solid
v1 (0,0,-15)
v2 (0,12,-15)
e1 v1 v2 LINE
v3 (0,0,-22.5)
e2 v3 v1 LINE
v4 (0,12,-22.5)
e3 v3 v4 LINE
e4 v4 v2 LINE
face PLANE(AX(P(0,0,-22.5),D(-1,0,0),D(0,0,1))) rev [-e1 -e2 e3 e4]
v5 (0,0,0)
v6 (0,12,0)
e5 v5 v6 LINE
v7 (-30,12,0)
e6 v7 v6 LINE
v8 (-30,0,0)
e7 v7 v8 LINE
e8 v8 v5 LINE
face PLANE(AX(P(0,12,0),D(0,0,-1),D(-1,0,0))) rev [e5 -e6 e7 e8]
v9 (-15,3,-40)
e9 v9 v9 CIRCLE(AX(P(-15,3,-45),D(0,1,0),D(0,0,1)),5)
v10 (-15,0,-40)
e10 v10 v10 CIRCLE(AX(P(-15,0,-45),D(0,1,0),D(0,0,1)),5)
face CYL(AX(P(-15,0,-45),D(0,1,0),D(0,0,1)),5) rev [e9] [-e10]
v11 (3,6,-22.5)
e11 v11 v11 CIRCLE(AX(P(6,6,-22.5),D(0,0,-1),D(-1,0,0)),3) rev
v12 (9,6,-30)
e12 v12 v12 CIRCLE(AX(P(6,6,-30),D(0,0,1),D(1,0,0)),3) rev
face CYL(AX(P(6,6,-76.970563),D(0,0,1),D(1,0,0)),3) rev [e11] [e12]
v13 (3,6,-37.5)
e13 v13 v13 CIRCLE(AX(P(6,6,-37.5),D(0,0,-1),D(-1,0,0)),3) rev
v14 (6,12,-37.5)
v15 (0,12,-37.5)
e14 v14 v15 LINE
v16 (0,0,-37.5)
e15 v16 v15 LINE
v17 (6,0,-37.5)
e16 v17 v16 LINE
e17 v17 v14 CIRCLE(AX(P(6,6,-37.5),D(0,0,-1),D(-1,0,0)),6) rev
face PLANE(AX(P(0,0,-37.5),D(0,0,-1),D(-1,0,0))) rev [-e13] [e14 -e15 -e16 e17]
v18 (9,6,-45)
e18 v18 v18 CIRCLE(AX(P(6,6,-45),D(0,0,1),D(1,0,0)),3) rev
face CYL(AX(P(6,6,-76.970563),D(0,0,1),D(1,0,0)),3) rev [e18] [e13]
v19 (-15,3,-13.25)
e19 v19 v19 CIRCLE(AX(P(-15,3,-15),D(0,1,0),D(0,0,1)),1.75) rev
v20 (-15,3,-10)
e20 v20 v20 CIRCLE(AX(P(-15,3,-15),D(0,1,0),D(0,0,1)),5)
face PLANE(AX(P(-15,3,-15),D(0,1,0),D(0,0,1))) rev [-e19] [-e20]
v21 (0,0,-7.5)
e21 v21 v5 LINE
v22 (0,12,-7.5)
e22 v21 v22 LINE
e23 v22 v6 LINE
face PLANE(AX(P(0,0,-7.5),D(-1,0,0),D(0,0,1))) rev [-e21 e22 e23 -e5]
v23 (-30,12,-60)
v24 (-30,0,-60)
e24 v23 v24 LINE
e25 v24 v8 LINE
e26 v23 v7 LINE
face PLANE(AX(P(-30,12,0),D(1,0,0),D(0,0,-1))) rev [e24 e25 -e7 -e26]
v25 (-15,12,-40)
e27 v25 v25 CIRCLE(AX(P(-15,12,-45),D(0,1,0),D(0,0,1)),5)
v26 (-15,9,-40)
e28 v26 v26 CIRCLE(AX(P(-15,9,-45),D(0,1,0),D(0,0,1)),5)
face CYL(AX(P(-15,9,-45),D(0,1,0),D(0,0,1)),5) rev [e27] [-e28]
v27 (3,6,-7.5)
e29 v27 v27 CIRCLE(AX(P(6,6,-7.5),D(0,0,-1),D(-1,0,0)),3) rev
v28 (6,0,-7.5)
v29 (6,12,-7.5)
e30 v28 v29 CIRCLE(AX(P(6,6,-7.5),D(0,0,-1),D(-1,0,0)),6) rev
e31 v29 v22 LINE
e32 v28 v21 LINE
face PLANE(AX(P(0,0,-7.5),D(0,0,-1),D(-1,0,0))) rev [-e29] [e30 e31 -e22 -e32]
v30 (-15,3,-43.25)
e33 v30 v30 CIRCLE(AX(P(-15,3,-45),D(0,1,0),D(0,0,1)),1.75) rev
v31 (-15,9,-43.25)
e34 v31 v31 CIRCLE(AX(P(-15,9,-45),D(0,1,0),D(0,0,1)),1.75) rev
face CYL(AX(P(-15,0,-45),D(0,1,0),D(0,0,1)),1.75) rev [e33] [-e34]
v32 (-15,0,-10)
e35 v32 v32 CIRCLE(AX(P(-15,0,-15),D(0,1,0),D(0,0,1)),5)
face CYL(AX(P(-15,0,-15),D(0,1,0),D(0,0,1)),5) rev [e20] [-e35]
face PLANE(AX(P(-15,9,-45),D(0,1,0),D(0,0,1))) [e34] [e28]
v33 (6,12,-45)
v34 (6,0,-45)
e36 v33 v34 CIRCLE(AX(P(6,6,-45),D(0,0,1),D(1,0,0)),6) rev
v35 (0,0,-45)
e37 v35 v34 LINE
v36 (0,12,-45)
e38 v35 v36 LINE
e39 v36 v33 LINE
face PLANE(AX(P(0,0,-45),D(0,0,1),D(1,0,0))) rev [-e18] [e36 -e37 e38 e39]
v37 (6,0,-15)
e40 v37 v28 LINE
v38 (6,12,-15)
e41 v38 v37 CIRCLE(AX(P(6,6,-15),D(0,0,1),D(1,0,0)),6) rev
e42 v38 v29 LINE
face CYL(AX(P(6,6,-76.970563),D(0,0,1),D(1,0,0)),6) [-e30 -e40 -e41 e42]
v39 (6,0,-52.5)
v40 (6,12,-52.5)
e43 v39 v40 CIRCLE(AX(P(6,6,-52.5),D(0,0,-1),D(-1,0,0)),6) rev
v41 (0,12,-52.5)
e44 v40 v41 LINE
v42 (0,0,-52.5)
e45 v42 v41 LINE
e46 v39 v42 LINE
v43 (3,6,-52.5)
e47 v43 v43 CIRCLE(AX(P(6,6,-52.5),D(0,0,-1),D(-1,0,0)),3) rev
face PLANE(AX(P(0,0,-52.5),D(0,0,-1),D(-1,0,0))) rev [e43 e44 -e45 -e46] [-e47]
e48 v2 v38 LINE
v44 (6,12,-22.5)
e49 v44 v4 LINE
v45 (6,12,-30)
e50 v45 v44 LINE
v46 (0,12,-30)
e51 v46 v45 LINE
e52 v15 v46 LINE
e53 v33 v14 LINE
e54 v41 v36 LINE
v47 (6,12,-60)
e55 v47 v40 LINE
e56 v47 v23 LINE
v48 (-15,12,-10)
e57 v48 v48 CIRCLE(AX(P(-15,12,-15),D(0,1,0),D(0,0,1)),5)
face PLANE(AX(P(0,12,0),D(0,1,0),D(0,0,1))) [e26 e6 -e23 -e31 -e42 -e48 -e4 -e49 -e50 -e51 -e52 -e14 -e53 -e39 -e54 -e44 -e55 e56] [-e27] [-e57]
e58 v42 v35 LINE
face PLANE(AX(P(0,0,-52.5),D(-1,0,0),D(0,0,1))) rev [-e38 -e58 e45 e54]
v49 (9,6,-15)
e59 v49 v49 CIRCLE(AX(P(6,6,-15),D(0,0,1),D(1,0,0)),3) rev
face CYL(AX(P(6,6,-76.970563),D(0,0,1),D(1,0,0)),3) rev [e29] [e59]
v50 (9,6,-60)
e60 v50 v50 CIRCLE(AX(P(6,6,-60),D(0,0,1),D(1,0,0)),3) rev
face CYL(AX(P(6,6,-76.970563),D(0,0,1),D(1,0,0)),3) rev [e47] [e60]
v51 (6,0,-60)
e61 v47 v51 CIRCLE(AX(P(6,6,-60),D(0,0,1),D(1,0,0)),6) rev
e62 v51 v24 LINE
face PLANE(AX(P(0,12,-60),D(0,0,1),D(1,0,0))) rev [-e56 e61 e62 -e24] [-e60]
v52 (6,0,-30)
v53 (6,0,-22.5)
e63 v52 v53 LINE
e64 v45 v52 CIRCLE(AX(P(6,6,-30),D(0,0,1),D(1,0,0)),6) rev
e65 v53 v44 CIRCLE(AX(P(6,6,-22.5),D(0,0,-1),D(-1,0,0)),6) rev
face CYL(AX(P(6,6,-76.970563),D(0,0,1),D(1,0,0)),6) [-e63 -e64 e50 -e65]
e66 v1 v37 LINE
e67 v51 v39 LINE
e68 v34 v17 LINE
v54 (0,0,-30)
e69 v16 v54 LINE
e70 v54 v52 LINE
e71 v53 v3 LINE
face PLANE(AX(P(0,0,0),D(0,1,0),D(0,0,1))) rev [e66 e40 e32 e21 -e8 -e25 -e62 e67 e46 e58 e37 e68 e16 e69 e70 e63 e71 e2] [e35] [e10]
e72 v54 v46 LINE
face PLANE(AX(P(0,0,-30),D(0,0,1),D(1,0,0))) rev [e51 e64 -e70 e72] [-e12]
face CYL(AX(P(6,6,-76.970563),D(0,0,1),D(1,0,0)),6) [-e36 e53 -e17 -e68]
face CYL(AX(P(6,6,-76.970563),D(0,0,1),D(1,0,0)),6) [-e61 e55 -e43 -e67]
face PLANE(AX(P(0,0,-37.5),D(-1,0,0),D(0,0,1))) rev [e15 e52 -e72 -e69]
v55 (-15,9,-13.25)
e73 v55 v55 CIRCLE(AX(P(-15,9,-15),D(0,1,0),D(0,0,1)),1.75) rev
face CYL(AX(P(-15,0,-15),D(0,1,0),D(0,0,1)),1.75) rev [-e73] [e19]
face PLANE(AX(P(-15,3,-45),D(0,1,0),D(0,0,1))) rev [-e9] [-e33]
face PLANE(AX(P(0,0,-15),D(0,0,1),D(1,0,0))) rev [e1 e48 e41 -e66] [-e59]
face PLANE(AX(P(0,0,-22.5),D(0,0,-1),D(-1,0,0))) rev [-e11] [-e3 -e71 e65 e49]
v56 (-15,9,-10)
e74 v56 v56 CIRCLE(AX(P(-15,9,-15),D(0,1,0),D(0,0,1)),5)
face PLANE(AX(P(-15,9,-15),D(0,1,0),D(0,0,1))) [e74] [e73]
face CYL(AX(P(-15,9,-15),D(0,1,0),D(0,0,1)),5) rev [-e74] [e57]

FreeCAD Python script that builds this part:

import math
import FreeCAD as App
import Part
import Sketcher


def add_polygon(sketch, points):
    """Adds a closed chain of lines whose ends are joined by coincident constraints."""
    first, n = sketch.GeometryCount, len(points)
    for a, b in zip(points, points[1:] + points[:1]):
        sketch.addGeometry(Part.LineSegment(App.Vector(*a, 0), App.Vector(*b, 0)), False)
    for i in range(n):
        sketch.addConstraint(Sketcher.Constraint("Coincident", first + i, 2, first + (i + 1) % n, 1))

doc = App.newDocument("Part")
params = doc.addObject("Spreadsheet::Sheet", "Params")
for row, (alias, value) in enumerate([
    ("sketch1_width", "30 mm"),
    ("sketch1_height", "60 mm"),
    ("pad1_length", "12 mm"),
    ("sketch2_diameter", "6 mm"),
    ("sketch2_radius", "6 mm"),
    ("sketch2_width", "6 mm"),
    ("pad2_length", "60 mm"),
    ("sketch3_width", "12 mm"),
    ("sketch3_height", "7.5 mm"),
    ("linearpattern_pitch", "15 mm"),
    ("sketch4_diameter", "3.5 mm"),
    ("sketch5_diameter", "10 mm"),
    ("pocket3_length", "3 mm"),
    ("linearpattern2_pitch", "9 mm"),
], start=1):
    params.set(f"A{row}", alias)
    params.set(f"B{row}", "=" + value)
    params.setAlias(f"B{row}", alias)

body = doc.addObject("PartDesign::Body", "Body")

# Sketch on XZ plane
sketch1 = body.newObject("Sketcher::SketchObject", "Sketch")
sketch1.AttachmentSupport = (doc.getObject("XZ_Plane"), [""])
sketch1.MapMode = "FlatFace"
add_polygon(sketch1, [(-30, -60), (-30, 0), (0, 0), (0, -60)])  # lines 0-3
sketch1.addConstraint([
    Sketcher.Constraint("Vertical", 0),
    Sketcher.Constraint("Horizontal", 1),
    Sketcher.Constraint("Vertical", 2),
    Sketcher.Constraint("Horizontal", 3),
    Sketcher.Constraint("Coincident", 1, 2, -1, 1),
    Sketcher.Constraint("DistanceX", 1, 1, 1, 2, 30.0),
    Sketcher.Constraint("DistanceY", 0, 1, 0, 2, 60.0),
])
sketch1.setExpression("Constraints[9]", "Params.sketch1_width")
sketch1.setExpression("Constraints[10]", "Params.sketch1_height")
pad1 = body.newObject("PartDesign::Pad", "Pad")
pad1.Profile = sketch1
pad1.setExpression("Length", "Params.pad1_length")
pad1.Reversed = True

# Sketch on XY plane
sketch2 = body.newObject("Sketcher::SketchObject", "Sketch001")
sketch2.AttachmentSupport = (doc.getObject("XY_Plane"), [""])
sketch2.MapMode = "FlatFace"
sketch2.addGeometry([
    Part.LineSegment(App.Vector(0, 0, 0), App.Vector(6, 0, 0)),  # 0
    Part.ArcOfCircle(Part.Circle(App.Vector(6, 6, 0), App.Vector(0, 0, 1), 6), math.radians(-90), math.radians(90)),  # 1
    Part.LineSegment(App.Vector(6, 12, 0), App.Vector(0, 12, 0)),  # 2
    Part.LineSegment(App.Vector(0, 12, 0), App.Vector(0, 0, 0)),  # 3
    Part.Circle(App.Vector(6, 6, 0), App.Vector(0, 0, 1), 3),  # 4
], False)
sketch2.addConstraint([
    Sketcher.Constraint("Tangent", 0, 2, 1, 1),
    Sketcher.Constraint("Tangent", 1, 2, 2, 1),
    Sketcher.Constraint("Coincident", 2, 2, 3, 1),
    Sketcher.Constraint("Coincident", 3, 2, 0, 1),
    Sketcher.Constraint("Horizontal", 0),
    Sketcher.Constraint("Horizontal", 2),
    Sketcher.Constraint("Vertical", 3),
    Sketcher.Constraint("Coincident", 3, 2, -1, 1),
    Sketcher.Constraint("Coincident", 4, 3, 1, 3),
    Sketcher.Constraint("Diameter", 4, 6.0),
    Sketcher.Constraint("Radius", 1, 6.0),
    Sketcher.Constraint("DistanceX", 0, 1, 0, 2, 6.0),
])
sketch2.setExpression("Constraints[9]", "Params.sketch2_diameter")
sketch2.setExpression("Constraints[10]", "Params.sketch2_radius")
sketch2.setExpression("Constraints[11]", "Params.sketch2_width")
pad2 = body.newObject("PartDesign::Pad", "Pad001")
pad2.Profile = sketch2
pad2.setExpression("Length", "Params.pad2_length")
pad2.Reversed = True

# Sketch on XZ plane
sketch3 = body.newObject("Sketcher::SketchObject", "Sketch002")
sketch3.AttachmentSupport = (doc.getObject("XZ_Plane"), [""])
sketch3.MapMode = "FlatFace"
sketch3.AttachmentOffset = App.Placement(App.Vector(0, 0, -12), App.Rotation())
add_polygon(sketch3, [(0, -52.5), (0, -45), (12, -45), (12, -52.5)])  # lines 0-3
sketch3.addConstraint([
    Sketcher.Constraint("Vertical", 0),
    Sketcher.Constraint("Horizontal", 1),
    Sketcher.Constraint("Vertical", 2),
    Sketcher.Constraint("Horizontal", 3),
    Sketcher.Constraint("PointOnObject", 0, 2, -2),
    Sketcher.Constraint("DistanceX", 1, 1, 1, 2, 12.0),
    Sketcher.Constraint("DistanceY", 0, 1, 0, 2, 7.5),
    Sketcher.Constraint("DistanceY", 0, 2, -1, 1, 45.0),
])
sketch3.setExpression("Constraints[9]", "Params.sketch3_width")
sketch3.setExpression("Constraints[10]", "Params.sketch3_height")
pocket1 = body.newObject("PartDesign::Pocket", "Pocket")
pocket1.Profile = sketch3
pocket1.Type = "ThroughAll"
pocket1.Reversed = True
doc.recompute()

linearpattern = body.newObject("PartDesign::LinearPattern", "LinearPattern")
linearpattern.Originals = [pocket1]
linearpattern.Direction = (doc.getObject("Z_Axis"), [""])
linearpattern.Mode = "offset"
linearpattern.setExpression("Offset", "Params.linearpattern_pitch")
linearpattern.Occurrences = 4
body.Tip = linearpattern

# Sketch on XZ plane
sketch4 = body.newObject("Sketcher::SketchObject", "Sketch003")
sketch4.AttachmentSupport = (doc.getObject("XZ_Plane"), [""])
sketch4.MapMode = "FlatFace"
sketch4.AttachmentOffset = App.Placement(App.Vector(0, 0, -12), App.Rotation())
sketch4.addGeometry([
    Part.Circle(App.Vector(-15, -45, 0), App.Vector(0, 0, 1), 1.75),
    Part.Circle(App.Vector(-15, -15, 0), App.Vector(0, 0, 1), 1.75),
], False)
sketch4.addConstraint([
    Sketcher.Constraint("Equal", 0, 1),
    Sketcher.Constraint("Vertical", 0, 3, 1, 3),
    Sketcher.Constraint("Diameter", 0, 3.5),
    Sketcher.Constraint("DistanceX", 0, 3, -1, 1, 15.0),
    Sketcher.Constraint("DistanceY", 0, 3, -1, 1, 45.0),
    Sketcher.Constraint("DistanceY", 1, 3, -1, 1, 15.0),
])
sketch4.setExpression("Constraints[2]", "Params.sketch4_diameter")
pocket2 = body.newObject("PartDesign::Pocket", "Pocket001")
pocket2.Profile = sketch4
pocket2.Type = "ThroughAll"
pocket2.Reversed = True

# Sketch on XZ plane
sketch5 = body.newObject("Sketcher::SketchObject", "Sketch004")
sketch5.AttachmentSupport = (doc.getObject("XZ_Plane"), [""])
sketch5.MapMode = "FlatFace"
sketch5.AttachmentOffset = App.Placement(App.Vector(0, 0, -12), App.Rotation())
sketch5.addGeometry([
    Part.Circle(App.Vector(-15, -45, 0), App.Vector(0, 0, 1), 5),
    Part.Circle(App.Vector(-15, -15, 0), App.Vector(0, 0, 1), 5),
], False)
sketch5.addConstraint([
    Sketcher.Constraint("Equal", 0, 1),
    Sketcher.Constraint("Vertical", 0, 3, 1, 3),
    Sketcher.Constraint("Diameter", 0, 10.0),
    Sketcher.Constraint("DistanceX", 0, 3, -1, 1, 15.0),
    Sketcher.Constraint("DistanceY", 0, 3, -1, 1, 45.0),
    Sketcher.Constraint("DistanceY", 1, 3, -1, 1, 15.0),
])
sketch5.setExpression("Constraints[2]", "Params.sketch5_diameter")
pocket3 = body.newObject("PartDesign::Pocket", "Pocket002")
pocket3.Profile = sketch5
pocket3.setExpression("Length", "Params.pocket3_length")
pocket3.Reversed = True
doc.recompute()

linearpattern2 = body.newObject("PartDesign::LinearPattern", "LinearPattern001")
linearpattern2.Originals = [pocket3]
linearpattern2.Direction = (doc.getObject("Y_Axis"), [""])
linearpattern2.Mode = "offset"
linearpattern2.setExpression("Offset", "Params.linearpattern2_pitch")
linearpattern2.Occurrences = 2
linearpattern2.Reversed = True
body.Tip = linearpattern2

doc.recompute()
